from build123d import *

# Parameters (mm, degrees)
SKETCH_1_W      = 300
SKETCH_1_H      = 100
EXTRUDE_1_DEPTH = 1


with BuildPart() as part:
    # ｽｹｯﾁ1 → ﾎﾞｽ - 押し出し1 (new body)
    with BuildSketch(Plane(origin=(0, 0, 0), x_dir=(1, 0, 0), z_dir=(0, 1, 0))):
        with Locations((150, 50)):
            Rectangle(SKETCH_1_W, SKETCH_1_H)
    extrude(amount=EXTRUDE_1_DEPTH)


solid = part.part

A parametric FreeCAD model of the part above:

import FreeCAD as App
import Part
import Sketcher

V = App.Vector


def add_polygon(sketch, points):
    """Adds a closed chain of lines whose ends are joined by coincident constraints."""
    first, n = sketch.GeometryCount, len(points)
    for a, b in zip(points, points[1:] + points[:1]):
        sketch.addGeometry(Part.LineSegment(App.Vector(*a, 0), App.Vector(*b, 0)), False)
    for i in range(n):
        sketch.addConstraint(Sketcher.Constraint("Coincident", first + i, 2, first + (i + 1) % n, 1))

doc = App.newDocument("Part")
body = doc.addObject("PartDesign::Body", "Body")

# Sketch on XZ plane
sketch1 = body.newObject("Sketcher::SketchObject", "Sketch")
sketch1.AttachmentSupport = (doc.getObject("XZ_Plane"), [""])
sketch1.MapMode = "FlatFace"
add_polygon(sketch1, [(0, -100), (0, 0), (300, 0), (300, -100)])  # lines 0-3
sketch1.addConstraint([
    Sketcher.Constraint("Vertical", 0),
    Sketcher.Constraint("Horizontal", 1),
    Sketcher.Constraint("Vertical", 2),
    Sketcher.Constraint("Horizontal", 3),
    Sketcher.Constraint("Coincident", 0, 2, -1, 1),
    Sketcher.Constraint("DistanceX", 1, 1, 1, 2, 300.0),
    Sketcher.Constraint("DistanceY", 0, 1, 0, 2, 100.0),
])
pad1 = body.newObject("PartDesign::Pad", "Pad")
pad1.Profile = sketch1
pad1.Length = 1
pad1.Reversed = True

doc.recompute()
